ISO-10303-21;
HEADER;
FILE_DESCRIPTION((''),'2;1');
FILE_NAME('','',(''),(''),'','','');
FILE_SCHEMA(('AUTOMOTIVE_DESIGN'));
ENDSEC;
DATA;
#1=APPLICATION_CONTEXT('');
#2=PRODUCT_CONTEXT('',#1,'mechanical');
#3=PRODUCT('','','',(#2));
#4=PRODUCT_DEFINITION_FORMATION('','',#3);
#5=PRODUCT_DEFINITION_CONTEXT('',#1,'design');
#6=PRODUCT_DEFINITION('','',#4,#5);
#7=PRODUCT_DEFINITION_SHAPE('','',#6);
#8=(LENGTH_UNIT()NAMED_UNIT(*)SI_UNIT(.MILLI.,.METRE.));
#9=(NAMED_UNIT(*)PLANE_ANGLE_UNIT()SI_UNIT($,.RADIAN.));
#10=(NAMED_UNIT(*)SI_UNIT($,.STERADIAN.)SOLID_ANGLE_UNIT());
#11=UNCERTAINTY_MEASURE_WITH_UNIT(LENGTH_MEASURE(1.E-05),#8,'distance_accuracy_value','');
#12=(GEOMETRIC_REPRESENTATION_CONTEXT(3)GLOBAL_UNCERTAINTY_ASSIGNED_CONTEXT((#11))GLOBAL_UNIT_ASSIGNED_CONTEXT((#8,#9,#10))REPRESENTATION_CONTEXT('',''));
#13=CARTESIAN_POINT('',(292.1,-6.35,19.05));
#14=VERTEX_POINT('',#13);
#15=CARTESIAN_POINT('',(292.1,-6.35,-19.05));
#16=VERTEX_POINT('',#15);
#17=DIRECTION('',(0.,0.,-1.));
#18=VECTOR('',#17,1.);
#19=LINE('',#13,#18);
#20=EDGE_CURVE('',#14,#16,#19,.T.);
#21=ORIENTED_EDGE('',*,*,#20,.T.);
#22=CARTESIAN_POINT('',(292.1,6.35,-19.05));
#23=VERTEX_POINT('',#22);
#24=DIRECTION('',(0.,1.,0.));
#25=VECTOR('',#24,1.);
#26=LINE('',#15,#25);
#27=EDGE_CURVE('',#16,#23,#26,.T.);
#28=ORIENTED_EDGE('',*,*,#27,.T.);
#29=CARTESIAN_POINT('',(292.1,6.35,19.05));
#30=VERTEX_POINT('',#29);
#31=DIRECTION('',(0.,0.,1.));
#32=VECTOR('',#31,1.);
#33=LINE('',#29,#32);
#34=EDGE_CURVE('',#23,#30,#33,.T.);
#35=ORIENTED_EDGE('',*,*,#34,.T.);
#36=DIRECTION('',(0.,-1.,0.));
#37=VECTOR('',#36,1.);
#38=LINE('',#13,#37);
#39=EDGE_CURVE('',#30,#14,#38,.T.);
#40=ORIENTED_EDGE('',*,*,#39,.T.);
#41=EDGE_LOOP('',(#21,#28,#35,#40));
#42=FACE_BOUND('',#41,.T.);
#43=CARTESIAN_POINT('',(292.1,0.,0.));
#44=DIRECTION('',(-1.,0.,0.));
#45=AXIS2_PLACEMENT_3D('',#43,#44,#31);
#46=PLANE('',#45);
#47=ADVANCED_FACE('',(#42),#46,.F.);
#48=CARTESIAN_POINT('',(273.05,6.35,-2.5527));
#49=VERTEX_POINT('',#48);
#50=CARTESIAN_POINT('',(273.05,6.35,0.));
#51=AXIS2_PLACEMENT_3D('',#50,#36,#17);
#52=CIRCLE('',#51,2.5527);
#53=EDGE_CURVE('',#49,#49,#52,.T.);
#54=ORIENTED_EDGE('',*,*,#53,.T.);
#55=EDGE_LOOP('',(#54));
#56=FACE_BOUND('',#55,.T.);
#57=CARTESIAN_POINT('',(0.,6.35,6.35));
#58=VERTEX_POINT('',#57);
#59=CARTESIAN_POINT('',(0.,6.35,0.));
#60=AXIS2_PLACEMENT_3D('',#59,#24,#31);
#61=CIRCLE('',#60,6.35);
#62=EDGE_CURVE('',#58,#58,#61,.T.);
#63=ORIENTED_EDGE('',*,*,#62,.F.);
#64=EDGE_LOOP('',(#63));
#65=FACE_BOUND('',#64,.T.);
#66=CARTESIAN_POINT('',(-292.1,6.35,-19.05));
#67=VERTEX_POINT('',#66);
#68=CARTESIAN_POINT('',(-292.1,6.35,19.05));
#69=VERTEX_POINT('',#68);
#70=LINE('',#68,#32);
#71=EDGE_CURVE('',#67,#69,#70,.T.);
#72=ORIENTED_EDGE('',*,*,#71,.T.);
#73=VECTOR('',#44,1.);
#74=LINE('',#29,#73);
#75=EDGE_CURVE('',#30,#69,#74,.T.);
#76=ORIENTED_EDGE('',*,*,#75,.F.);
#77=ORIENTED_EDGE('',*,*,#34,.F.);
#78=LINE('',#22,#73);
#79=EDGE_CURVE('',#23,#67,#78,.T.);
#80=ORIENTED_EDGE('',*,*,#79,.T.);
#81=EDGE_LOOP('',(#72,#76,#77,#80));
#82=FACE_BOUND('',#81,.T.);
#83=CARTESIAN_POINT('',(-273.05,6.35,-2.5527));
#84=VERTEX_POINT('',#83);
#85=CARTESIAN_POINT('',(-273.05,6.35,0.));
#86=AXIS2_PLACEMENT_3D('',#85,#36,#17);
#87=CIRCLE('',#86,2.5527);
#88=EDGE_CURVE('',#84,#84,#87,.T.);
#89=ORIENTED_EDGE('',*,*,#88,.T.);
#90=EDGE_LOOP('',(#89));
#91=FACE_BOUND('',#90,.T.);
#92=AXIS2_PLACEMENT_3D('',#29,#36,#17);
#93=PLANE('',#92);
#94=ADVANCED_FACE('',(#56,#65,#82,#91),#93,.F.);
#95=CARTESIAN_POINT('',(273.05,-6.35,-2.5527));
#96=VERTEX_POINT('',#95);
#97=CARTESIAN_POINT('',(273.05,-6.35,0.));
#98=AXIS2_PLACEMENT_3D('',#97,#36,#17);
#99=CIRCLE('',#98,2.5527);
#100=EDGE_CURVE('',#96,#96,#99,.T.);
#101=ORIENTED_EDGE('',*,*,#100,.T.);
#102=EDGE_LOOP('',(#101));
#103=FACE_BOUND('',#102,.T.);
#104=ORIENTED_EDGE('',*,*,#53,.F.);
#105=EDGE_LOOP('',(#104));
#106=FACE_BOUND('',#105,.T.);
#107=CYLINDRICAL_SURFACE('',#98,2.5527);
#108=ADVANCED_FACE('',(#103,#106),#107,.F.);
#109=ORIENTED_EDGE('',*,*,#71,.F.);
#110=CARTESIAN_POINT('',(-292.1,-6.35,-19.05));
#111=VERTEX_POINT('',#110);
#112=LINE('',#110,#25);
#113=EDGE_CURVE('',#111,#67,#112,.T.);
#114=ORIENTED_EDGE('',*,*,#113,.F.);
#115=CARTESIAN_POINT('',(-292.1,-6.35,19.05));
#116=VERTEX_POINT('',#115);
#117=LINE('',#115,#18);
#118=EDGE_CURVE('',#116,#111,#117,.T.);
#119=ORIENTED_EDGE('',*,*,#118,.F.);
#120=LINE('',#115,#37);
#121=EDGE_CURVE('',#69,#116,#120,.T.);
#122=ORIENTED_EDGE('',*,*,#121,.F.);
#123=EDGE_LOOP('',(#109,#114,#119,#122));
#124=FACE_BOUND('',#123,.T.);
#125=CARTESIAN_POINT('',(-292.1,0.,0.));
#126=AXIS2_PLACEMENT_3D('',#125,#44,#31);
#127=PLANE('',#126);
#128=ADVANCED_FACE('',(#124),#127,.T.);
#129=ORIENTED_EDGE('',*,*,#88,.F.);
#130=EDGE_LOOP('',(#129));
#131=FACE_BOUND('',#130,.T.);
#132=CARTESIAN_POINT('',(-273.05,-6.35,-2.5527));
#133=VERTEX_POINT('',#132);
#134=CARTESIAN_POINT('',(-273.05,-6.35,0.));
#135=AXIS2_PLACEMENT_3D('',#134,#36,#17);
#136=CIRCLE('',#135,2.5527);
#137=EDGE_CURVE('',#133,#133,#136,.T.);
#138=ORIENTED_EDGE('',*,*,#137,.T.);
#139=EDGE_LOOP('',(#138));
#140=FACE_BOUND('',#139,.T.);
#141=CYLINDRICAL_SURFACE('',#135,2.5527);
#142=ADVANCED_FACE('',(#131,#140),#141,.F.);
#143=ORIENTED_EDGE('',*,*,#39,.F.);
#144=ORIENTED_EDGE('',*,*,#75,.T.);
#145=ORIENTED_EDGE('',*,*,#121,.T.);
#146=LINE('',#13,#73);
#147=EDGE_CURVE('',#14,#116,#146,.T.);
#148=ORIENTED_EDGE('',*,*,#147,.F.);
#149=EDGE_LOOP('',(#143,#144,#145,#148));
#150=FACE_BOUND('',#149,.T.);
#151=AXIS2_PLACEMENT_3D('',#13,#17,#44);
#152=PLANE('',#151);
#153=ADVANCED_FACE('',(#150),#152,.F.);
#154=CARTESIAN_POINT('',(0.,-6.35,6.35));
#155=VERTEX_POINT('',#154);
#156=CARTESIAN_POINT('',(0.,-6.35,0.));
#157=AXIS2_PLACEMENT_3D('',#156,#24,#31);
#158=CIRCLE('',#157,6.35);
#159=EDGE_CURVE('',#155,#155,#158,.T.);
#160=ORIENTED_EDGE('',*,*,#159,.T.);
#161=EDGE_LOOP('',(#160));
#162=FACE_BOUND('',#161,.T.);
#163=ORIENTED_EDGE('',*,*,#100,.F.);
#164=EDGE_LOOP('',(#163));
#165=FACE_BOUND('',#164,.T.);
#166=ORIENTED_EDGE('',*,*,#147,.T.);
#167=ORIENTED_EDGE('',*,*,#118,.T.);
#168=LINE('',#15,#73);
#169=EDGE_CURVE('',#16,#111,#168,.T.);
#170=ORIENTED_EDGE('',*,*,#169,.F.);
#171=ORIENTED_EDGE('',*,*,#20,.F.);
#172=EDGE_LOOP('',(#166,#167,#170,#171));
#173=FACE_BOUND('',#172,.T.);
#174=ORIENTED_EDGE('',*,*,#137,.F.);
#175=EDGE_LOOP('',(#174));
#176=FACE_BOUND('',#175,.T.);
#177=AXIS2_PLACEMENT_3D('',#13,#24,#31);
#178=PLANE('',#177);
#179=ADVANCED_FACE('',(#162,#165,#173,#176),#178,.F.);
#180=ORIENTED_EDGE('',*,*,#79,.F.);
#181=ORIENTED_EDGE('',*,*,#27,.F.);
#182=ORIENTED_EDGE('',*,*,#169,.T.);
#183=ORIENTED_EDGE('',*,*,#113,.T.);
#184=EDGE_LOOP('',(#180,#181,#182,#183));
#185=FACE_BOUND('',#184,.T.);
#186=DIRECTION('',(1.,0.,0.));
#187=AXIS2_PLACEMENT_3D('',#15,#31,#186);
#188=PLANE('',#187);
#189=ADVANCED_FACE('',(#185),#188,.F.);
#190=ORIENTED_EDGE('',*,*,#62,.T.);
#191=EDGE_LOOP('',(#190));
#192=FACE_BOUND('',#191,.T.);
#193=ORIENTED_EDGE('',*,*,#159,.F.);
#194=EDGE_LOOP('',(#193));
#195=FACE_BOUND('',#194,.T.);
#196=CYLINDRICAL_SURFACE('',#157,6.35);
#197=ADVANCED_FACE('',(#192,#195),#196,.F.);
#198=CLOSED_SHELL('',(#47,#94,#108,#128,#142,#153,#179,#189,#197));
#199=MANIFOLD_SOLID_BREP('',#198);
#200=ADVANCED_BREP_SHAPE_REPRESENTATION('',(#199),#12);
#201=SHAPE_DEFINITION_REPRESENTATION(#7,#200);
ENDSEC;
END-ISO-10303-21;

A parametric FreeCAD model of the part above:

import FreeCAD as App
import Part
import Sketcher

V = App.Vector
Q = App.Units.Quantity


def add_polygon(sketch, points):
    """Adds a closed chain of lines whose ends are joined by coincident constraints."""
    first, n = sketch.GeometryCount, len(points)
    for a, b in zip(points, points[1:] + points[:1]):
        sketch.addGeometry(Part.LineSegment(App.Vector(*a, 0), App.Vector(*b, 0)), False)
    for i in range(n):
        sketch.addConstraint(Sketcher.Constraint("Coincident", first + i, 2, first + (i + 1) % n, 1))

doc = App.newDocument("Part")
body = doc.addObject("PartDesign::Body", "Body")

# Sketch on YZ plane
sketch1 = body.newObject("Sketcher::SketchObject", "Sketch")
sketch1.AttachmentSupport = (doc.getObject("YZ_Plane"), [""])
sketch1.MapMode = "FlatFace"
add_polygon(sketch1, [(6, 19), (-6, 19), (-6, -19), (6, -19)])  # lines 0-3
sketch1.addConstraint(Sketcher.Constraint("Horizontal", 0))
sketch1.addConstraint(Sketcher.Constraint("Vertical", 1))
sketch1.addConstraint(Sketcher.Constraint("Horizontal", 2))
sketch1.addConstraint(Sketcher.Constraint("Vertical", 3))
sketch1.addConstraint(Sketcher.Constraint("Symmetric", 0, 2, 2, 2, -1, 1))
sketch1.addConstraint(Sketcher.Constraint("DistanceX", 0, 2, 0, 1, Q("0.5 in")))
sketch1.addConstraint(Sketcher.Constraint("DistanceY", 1, 2, 1, 1, Q("1.5 in")))
pad1 = body.newObject("PartDesign::Pad", "Pad")
pad1.Profile = sketch1
pad1.Length = Q("23 in")
pad1.Midplane = True

# Sketch on XZ plane
sketch2 = body.newObject("Sketcher::SketchObject", "Sketch001")
sketch2.AttachmentSupport = (doc.getObject("XZ_Plane"), [""])
sketch2.MapMode = "FlatFace"
sketch2.AttachmentOffset = App.Placement(V(0, 0, -0.25 * 25.4), App.Rotation())
sketch2.addGeometry(Part.Circle(V(0, 0, 0), V(0, 0, 1), 6), False)
sketch2.addConstraint(Sketcher.Constraint("Coincident", 0, 3, -1, 1))
sketch2.addConstraint(Sketcher.Constraint("Diameter", 0, Q("0.5 in")))
pocket1 = body.newObject("PartDesign::Pocket", "Pocket")
pocket1.Profile = sketch2
pocket1.Type = "ThroughAll"
pocket1.Reversed = True

# Sketch on XZ plane
sketch3 = body.newObject("Sketcher::SketchObject", "Sketch002")
sketch3.AttachmentSupport = (doc.getObject("XZ_Plane"), [""])
sketch3.MapMode = "FlatFace"
sketch3.AttachmentOffset = App.Placement(V(0, 0, 0.25 * 25.4), App.Rotation())
sketch3.addGeometry(Part.Circle(V(-273.1, 0, 0), V(0, 0, 1), 2.6), False)
sketch3.addGeometry(Part.Circle(V(273.1, 0, 0), V(0, 0, 1), 2.6), False)
sketch3.addConstraint(Sketcher.Constraint("Equal", 0, 1))
sketch3.addConstraint(Sketcher.Constraint("Symmetric", 0, 3, 1, 3, -1, 1))
sketch3.addConstraint(Sketcher.Constraint("PointOnObject", 0, 3, -1))
sketch3.addConstraint(Sketcher.Constraint("Diameter", 0, Q("0.201 in")))
sketch3.addConstraint(Sketcher.Constraint("DistanceX", 0, 3, 1, 3, Q("21.5 in")))
doc.recompute()
hole = body.newObject("PartDesign::Hole", "Hole")
hole.Profile = sketch3
hole.ThreadType = "None"
hole.Diameter = Q("0.201 in")
hole.DepthType = "ThroughAll"

doc.recompute()
